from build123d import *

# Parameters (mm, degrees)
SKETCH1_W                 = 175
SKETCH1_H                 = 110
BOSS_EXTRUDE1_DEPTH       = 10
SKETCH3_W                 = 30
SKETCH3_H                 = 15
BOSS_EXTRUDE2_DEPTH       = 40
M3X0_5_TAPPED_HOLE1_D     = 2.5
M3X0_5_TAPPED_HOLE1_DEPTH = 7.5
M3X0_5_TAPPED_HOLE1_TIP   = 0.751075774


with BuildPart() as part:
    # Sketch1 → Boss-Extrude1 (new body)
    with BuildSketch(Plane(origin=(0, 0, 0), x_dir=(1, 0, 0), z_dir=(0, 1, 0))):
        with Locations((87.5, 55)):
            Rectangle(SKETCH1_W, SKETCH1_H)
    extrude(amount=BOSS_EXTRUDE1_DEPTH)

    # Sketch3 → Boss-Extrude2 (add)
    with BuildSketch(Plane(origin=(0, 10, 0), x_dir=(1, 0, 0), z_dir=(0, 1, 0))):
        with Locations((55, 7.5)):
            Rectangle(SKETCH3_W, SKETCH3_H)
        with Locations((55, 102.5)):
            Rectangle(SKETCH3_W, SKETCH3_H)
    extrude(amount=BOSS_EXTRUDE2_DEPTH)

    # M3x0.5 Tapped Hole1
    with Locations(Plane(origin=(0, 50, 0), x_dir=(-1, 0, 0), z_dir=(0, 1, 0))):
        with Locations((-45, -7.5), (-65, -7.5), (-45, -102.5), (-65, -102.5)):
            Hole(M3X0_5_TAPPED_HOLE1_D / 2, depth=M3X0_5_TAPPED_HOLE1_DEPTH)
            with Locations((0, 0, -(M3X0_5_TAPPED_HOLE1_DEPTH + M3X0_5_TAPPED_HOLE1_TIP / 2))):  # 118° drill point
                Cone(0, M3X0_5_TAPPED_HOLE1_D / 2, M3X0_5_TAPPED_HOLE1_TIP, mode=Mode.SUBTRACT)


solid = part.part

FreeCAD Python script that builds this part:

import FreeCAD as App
import Part
import Sketcher

doc = App.newDocument("Part")
body = doc.addObject("PartDesign::Body", "Body")

# Sketch on XZ plane
sketch1 = body.newObject("Sketcher::SketchObject", "Sketch")
sketch1.AttachmentSupport = (doc.getObject("XZ_Plane"), [""])
sketch1.MapMode = "FlatFace"
sketch1.addGeometry([
    Part.LineSegment(App.Vector(0, -110, 0), App.Vector(0, 0, 0)),
    Part.LineSegment(App.Vector(0, 0, 0), App.Vector(175, 0, 0)),
    Part.LineSegment(App.Vector(175, 0, 0), App.Vector(175, -110, 0)),
    Part.LineSegment(App.Vector(175, -110, 0), App.Vector(0, -110, 0)),
], False)
sketch1.addConstraint([
    Sketcher.Constraint("Coincident", 0, 2, 1, 1),
    Sketcher.Constraint("Coincident", 1, 2, 2, 1),
    Sketcher.Constraint("Coincident", 2, 2, 3, 1),
    Sketcher.Constraint("Coincident", 3, 2, 0, 1),
    Sketcher.Constraint("Vertical", 0),
    Sketcher.Constraint("Horizontal", 1),
    Sketcher.Constraint("Vertical", 2),
    Sketcher.Constraint("Horizontal", 3),
    Sketcher.Constraint("Coincident", 0, 2, -1, 1),
    Sketcher.Constraint("DistanceX", 1, 1, 1, 2, 175.0),
    Sketcher.Constraint("DistanceY", 0, 1, 0, 2, 110.0),
])
pad1 = body.newObject("PartDesign::Pad", "Pad")
pad1.Profile = sketch1
pad1.Length = 10
pad1.Reversed = True

# Sketch on XZ plane
sketch2 = body.newObject("Sketcher::SketchObject", "Sketch001")
sketch2.AttachmentSupport = (doc.getObject("XZ_Plane"), [""])
sketch2.MapMode = "FlatFace"
sketch2.AttachmentOffset = App.Placement(App.Vector(0, 0, -10), App.Rotation())
sketch2.addGeometry([
    Part.LineSegment(App.Vector(40, -15, 0), App.Vector(40, 0, 0)),  # 0
    Part.LineSegment(App.Vector(40, 0, 0), App.Vector(70, 0, 0)),  # 1
    Part.LineSegment(App.Vector(70, 0, 0), App.Vector(70, -15, 0)),  # 2
    Part.LineSegment(App.Vector(70, -15, 0), App.Vector(40, -15, 0)),  # 3
    Part.LineSegment(App.Vector(40, -110, 0), App.Vector(40, -95, 0)),  # 4
    Part.LineSegment(App.Vector(40, -95, 0), App.Vector(70, -95, 0)),  # 5
    Part.LineSegment(App.Vector(70, -95, 0), App.Vector(70, -110, 0)),  # 6
    Part.LineSegment(App.Vector(70, -110, 0), App.Vector(40, -110, 0)),  # 7
], False)
sketch2.addConstraint([
    Sketcher.Constraint("Coincident", 0, 2, 1, 1),
    Sketcher.Constraint("Coincident", 1, 2, 2, 1),
    Sketcher.Constraint("Coincident", 2, 2, 3, 1),
    Sketcher.Constraint("Coincident", 3, 2, 0, 1),
    Sketcher.Constraint("Coincident", 4, 2, 5, 1),
    Sketcher.Constraint("Coincident", 5, 2, 6, 1),
    Sketcher.Constraint("Coincident", 6, 2, 7, 1),
    Sketcher.Constraint("Coincident", 7, 2, 4, 1),
    Sketcher.Constraint("Vertical", 0),
    Sketcher.Constraint("Horizontal", 1),
    Sketcher.Constraint("Vertical", 2),
    Sketcher.Constraint("Horizontal", 3),
    Sketcher.Constraint("Vertical", 4),
    Sketcher.Constraint("Horizontal", 5),
    Sketcher.Constraint("Vertical", 6),
    Sketcher.Constraint("Horizontal", 7),
    Sketcher.Constraint("PointOnObject", 0, 2, -1),
    Sketcher.Constraint("Vertical", 3, 2, 4, 2),
    Sketcher.Constraint("Vertical", 2, 2, 5, 2),
    Sketcher.Constraint("Equal", 2, 4),
    Sketcher.Constraint("DistanceX", 1, 1, 1, 2, 30.0),
    Sketcher.Constraint("DistanceY", 0, 1, 0, 2, 15.0),
    Sketcher.Constraint("DistanceX", -1, 1, 0, 2, 40.0),
    Sketcher.Constraint("DistanceY", 4, 2, -1, 1, 95.0),
])
pad2 = body.newObject("PartDesign::Pad", "Pad001")
pad2.Profile = sketch2
pad2.Length = 40
pad2.Reversed = True

# Sketch on XZ plane
sketch3 = body.newObject("Sketcher::SketchObject", "Sketch002")
sketch3.AttachmentSupport = (doc.getObject("XZ_Plane"), [""])
sketch3.MapMode = "FlatFace"
sketch3.AttachmentOffset = App.Placement(App.Vector(0, 0, -50), App.Rotation())
sketch3.addGeometry([
    Part.Circle(App.Vector(45, -7.5, 0), App.Vector(0, 0, 1), 1.2),
    Part.Circle(App.Vector(65, -7.5, 0), App.Vector(0, 0, 1), 1.2),
    Part.Circle(App.Vector(45, -102.5, 0), App.Vector(0, 0, 1), 1.2),
    Part.Circle(App.Vector(65, -102.5, 0), App.Vector(0, 0, 1), 1.2),
], False)
sketch3.addConstraint([
    Sketcher.Constraint("Equal", 0, 1),
    Sketcher.Constraint("Equal", 1, 2),
    Sketcher.Constraint("Equal", 2, 3),
    Sketcher.Constraint("Horizontal", 0, 3, 1, 3),
    Sketcher.Constraint("Horizontal", 2, 3, 3, 3),
    Sketcher.Constraint("Vertical", 0, 3, 2, 3),
    Sketcher.Constraint("Vertical", 1, 3, 3, 3),
    Sketcher.Constraint("Diameter", 0, 2.5),
    Sketcher.Constraint("DistanceX", -1, 1, 0, 3, 45.0),
    Sketcher.Constraint("DistanceX", -1, 1, 1, 3, 65.0),
    Sketcher.Constraint("DistanceY", 2, 3, 0, 3, 95.0),
    Sketcher.Constraint("DistanceY", 0, 3, -1, 1, 7.5),
])
doc.recompute()
hole = body.newObject("PartDesign::Hole", "Hole")
hole.Profile = sketch3
hole.ThreadType = "None"
hole.Diameter = 2.5
hole.DepthType = "Dimension"
hole.Depth = 7.5
hole.DrillPoint = "Angled"
hole.DrillPointAngle = 118
hole.Reversed = True

doc.recompute()
